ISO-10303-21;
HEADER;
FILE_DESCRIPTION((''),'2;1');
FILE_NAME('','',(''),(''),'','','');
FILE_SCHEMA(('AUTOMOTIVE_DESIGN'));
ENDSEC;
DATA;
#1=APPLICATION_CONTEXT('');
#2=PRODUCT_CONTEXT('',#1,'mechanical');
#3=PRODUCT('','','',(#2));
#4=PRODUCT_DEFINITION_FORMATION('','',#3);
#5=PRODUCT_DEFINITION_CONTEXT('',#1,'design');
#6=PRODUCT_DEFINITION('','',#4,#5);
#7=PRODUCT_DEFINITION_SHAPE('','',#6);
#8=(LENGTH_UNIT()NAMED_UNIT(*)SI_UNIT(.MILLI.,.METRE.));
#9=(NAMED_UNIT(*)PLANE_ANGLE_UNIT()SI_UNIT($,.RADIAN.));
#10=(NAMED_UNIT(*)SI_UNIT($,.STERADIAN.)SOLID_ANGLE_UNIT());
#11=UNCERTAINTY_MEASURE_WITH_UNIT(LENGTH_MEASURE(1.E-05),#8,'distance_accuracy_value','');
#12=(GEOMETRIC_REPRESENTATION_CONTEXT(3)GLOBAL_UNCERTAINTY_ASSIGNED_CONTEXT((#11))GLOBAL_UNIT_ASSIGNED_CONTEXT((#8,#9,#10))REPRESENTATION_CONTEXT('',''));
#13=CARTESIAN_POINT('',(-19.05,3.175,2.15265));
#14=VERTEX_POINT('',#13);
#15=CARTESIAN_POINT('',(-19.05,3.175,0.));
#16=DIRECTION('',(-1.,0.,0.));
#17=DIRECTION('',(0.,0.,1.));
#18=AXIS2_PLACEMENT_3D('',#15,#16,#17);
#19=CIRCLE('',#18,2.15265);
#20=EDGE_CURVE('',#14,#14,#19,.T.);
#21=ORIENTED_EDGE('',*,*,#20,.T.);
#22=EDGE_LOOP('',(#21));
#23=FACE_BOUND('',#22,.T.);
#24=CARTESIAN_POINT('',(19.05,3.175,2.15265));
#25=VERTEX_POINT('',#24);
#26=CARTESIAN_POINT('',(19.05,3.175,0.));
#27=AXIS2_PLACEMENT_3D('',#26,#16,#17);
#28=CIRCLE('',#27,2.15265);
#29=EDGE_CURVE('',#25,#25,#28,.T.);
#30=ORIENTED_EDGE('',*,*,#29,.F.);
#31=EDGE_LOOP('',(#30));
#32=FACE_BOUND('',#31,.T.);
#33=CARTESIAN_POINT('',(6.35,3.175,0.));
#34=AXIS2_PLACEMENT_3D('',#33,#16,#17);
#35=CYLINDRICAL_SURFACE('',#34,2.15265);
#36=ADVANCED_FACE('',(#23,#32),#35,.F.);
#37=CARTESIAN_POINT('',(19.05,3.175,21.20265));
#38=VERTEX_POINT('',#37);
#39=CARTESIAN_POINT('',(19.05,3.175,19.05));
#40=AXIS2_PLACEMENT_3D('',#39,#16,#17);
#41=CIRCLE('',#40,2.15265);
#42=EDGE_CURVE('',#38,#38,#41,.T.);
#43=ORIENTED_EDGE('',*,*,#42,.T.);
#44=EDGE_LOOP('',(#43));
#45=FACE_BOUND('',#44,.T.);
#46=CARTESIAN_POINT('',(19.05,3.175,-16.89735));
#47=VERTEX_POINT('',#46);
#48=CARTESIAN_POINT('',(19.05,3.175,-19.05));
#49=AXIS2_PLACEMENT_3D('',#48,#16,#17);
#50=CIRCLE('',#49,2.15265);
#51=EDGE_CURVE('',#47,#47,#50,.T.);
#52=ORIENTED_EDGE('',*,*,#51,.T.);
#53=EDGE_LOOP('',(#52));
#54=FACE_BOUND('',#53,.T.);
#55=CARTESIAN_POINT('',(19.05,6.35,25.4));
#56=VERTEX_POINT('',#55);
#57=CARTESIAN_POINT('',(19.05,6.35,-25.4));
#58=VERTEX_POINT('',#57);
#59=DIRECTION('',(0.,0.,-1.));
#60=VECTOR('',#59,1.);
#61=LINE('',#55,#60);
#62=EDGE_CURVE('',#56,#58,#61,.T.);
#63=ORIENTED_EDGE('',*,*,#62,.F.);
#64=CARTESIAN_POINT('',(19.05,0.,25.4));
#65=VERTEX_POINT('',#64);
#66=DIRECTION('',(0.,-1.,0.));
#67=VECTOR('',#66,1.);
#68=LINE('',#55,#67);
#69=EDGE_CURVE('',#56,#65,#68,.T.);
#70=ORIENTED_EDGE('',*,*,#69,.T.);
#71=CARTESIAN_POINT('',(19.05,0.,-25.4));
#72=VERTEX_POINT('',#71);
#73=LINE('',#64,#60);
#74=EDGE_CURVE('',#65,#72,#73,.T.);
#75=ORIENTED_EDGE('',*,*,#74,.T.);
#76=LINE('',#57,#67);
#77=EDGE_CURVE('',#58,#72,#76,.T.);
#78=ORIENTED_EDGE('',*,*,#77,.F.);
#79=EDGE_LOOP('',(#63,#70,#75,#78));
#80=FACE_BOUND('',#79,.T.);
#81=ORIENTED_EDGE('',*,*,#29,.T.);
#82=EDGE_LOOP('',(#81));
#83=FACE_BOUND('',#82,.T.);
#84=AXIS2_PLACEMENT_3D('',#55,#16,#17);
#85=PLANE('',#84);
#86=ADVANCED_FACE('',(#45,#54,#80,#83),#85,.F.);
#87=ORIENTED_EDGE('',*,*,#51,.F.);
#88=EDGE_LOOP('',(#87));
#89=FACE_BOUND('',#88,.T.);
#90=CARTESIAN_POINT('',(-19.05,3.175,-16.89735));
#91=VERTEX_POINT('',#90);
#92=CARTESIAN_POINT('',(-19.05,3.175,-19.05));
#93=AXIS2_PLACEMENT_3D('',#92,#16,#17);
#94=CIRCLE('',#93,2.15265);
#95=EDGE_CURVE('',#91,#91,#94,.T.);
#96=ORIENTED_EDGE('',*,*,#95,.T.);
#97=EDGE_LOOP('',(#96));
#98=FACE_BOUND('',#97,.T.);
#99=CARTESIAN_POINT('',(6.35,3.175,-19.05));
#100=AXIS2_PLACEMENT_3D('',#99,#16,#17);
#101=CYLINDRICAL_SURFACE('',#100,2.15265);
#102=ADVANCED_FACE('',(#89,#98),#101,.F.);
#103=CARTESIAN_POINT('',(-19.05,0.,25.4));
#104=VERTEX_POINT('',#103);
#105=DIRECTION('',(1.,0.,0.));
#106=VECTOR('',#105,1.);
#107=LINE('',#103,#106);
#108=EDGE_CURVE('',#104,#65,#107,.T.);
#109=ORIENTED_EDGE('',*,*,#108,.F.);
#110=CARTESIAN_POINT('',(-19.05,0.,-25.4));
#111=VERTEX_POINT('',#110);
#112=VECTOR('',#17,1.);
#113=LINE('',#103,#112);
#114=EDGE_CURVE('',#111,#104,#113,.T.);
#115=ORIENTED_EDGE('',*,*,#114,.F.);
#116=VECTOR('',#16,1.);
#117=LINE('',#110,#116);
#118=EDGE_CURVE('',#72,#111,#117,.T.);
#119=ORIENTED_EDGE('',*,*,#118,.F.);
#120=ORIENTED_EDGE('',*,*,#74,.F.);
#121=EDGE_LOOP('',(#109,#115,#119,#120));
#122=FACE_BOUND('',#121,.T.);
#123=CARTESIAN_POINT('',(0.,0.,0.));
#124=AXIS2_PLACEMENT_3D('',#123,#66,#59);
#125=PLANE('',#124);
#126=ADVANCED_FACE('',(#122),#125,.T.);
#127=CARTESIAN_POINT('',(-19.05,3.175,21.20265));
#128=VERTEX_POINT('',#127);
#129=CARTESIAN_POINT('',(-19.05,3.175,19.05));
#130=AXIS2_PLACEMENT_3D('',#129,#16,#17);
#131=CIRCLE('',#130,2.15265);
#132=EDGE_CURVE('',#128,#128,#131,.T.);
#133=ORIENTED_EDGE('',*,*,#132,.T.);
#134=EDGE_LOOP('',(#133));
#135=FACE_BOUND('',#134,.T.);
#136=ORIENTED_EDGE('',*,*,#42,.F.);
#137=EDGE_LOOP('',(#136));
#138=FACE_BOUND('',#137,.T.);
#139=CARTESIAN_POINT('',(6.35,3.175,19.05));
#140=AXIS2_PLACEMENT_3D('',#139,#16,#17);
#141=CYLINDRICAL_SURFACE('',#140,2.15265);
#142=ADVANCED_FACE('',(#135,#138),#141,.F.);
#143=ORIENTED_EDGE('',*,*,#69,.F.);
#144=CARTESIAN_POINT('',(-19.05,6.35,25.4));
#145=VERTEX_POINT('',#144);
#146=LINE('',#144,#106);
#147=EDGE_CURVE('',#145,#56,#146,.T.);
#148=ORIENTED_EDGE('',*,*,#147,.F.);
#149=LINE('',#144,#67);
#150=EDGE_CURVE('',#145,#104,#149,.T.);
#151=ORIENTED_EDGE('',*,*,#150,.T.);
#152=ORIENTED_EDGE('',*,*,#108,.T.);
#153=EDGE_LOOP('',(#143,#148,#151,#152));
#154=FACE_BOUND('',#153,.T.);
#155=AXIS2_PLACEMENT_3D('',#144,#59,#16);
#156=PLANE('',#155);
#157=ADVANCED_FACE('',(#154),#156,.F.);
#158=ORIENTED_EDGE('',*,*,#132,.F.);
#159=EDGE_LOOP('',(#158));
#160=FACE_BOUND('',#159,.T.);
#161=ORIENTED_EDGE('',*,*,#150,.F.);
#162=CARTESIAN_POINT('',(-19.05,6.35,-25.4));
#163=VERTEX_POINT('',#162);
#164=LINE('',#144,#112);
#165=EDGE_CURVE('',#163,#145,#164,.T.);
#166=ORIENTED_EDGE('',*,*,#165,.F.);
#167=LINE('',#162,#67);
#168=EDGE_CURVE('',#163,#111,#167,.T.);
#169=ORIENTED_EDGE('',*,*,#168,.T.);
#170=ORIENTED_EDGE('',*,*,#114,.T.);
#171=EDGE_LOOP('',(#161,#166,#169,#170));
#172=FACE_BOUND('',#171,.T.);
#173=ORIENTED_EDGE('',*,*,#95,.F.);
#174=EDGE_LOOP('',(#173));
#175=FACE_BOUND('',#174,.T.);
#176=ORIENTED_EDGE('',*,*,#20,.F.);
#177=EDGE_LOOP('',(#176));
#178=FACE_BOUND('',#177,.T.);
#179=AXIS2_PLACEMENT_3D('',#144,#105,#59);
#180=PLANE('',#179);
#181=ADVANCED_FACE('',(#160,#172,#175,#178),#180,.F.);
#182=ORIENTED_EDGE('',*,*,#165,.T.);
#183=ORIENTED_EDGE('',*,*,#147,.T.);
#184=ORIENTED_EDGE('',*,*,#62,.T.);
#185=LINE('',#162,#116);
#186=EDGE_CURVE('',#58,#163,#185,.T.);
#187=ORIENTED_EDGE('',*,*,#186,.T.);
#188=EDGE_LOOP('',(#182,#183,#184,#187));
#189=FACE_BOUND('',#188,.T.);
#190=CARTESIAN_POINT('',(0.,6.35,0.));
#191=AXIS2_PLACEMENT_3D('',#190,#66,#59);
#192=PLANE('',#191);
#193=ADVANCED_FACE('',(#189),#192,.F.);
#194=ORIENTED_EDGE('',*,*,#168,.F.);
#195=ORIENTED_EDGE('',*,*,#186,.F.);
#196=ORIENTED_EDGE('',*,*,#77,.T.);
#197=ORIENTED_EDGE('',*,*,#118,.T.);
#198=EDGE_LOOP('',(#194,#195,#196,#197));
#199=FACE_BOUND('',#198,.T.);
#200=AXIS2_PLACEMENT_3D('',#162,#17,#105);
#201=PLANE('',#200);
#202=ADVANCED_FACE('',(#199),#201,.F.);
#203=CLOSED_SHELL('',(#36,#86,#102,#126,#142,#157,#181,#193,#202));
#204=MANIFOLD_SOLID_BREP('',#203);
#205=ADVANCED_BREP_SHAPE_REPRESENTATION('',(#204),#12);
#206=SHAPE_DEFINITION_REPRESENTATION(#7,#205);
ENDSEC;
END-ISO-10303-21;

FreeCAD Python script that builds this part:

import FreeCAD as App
import Part
import Sketcher
Q = App.Units.Quantity


def add_polygon(sketch, points):
    """Adds a closed chain of lines whose ends are joined by coincident constraints."""
    first, n = sketch.GeometryCount, len(points)
    for a, b in zip(points, points[1:] + points[:1]):
        sketch.addGeometry(Part.LineSegment(App.Vector(*a, 0), App.Vector(*b, 0)), False)
    for i in range(n):
        sketch.addConstraint(Sketcher.Constraint("Coincident", first + i, 2, first + (i + 1) % n, 1))

doc = App.newDocument("Part")
body = doc.addObject("PartDesign::Body", "Body")

# Sketch on XZ plane
sketch1 = body.newObject("Sketcher::SketchObject", "Sketch")
sketch1.AttachmentSupport = (doc.getObject("XZ_Plane"), [""])
sketch1.MapMode = "FlatFace"
add_polygon(sketch1, [(-19, -25), (-19, 25), (19, 25), (19, -25)])  # lines 0-3
sketch1.addConstraint([
    Sketcher.Constraint("Vertical", 0),
    Sketcher.Constraint("Horizontal", 1),
    Sketcher.Constraint("Vertical", 2),
    Sketcher.Constraint("Horizontal", 3),
    Sketcher.Constraint("Symmetric", 0, 2, 2, 2, -1, 1),
    Sketcher.Constraint("DistanceY", 0, 1, 0, 2, Q("2 in")),
    Sketcher.Constraint("DistanceX", 1, 1, 1, 2, Q("1.5 in")),
])
pad1 = body.newObject("PartDesign::Pad", "Pad")
pad1.Profile = sketch1
pad1.Length = Q("0.25 in")
pad1.Reversed = True

# Sketch on YZ plane
sketch2 = body.newObject("Sketcher::SketchObject", "Sketch001")
sketch2.AttachmentSupport = (doc.getObject("YZ_Plane"), [""])
sketch2.MapMode = "FlatFace"
sketch2.AttachmentOffset = App.Placement(App.Vector(0, 0, -0.75 * 25.4), App.Rotation())
sketch2.addGeometry([
    Part.Circle(App.Vector(3.2, -19.1, 0), App.Vector(0, 0, 1), 2.2),
    Part.Circle(App.Vector(3.2, 0, 0), App.Vector(0, 0, 1), 2.2),
    Part.Circle(App.Vector(3.2, 19.1, 0), App.Vector(0, 0, 1), 2.2),
], False)
sketch2.addConstraint([
    Sketcher.Constraint("Equal", 0, 1),
    Sketcher.Constraint("Equal", 1, 2),
    Sketcher.Constraint("Symmetric", 0, 3, 2, 3, -1),
    Sketcher.Constraint("PointOnObject", 1, 3, -1),
    Sketcher.Constraint("Vertical", 0, 3, 1, 3),
    Sketcher.Constraint("Diameter", 0, Q("0.1695 in")),
    Sketcher.Constraint("DistanceY", 0, 3, 2, 3, Q("1.5 in")),
    Sketcher.Constraint("DistanceX", -1, 1, 0, 3, Q("0.125 in")),
])
pocket1 = body.newObject("PartDesign::Pocket", "Pocket")
pocket1.Profile = sketch2
pocket1.Length = Q("1 in")
pocket1.Reversed = True
doc.recompute()

mirrored = body.newObject("PartDesign::Mirrored", "Mirrored")
mirrored.Originals = [pocket1]
mirrored.MirrorPlane = (doc.getObject("YZ_Plane"), [""])
body.Tip = mirrored

doc.recompute()
